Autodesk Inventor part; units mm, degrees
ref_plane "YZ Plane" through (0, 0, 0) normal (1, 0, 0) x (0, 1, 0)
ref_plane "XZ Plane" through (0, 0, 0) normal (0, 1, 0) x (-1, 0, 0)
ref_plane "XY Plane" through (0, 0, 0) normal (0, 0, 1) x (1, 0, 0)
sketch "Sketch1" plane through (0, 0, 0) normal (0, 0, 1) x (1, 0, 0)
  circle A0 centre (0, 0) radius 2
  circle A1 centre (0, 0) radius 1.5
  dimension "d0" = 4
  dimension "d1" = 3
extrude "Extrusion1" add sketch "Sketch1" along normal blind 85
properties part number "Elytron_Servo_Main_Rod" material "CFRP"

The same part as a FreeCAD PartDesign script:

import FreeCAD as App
import Part
import Sketcher
Q = App.Units.Quantity

doc = App.newDocument("Part")
params = doc.addObject("Spreadsheet::Sheet", "Params")
for row, (alias, value) in enumerate([
    ("sketch1_diameter", "4 mm"),
    ("sketch1_diameter2", "3 mm"),
    ("pad1_length", "85 mm"),
], start=1):
    params.set(f"A{row}", alias)
    params.set(f"B{row}", "=" + value)
    params.setAlias(f"B{row}", alias)

body = doc.addObject("PartDesign::Body", "Body")

# Sketch on XY plane
sketch1 = doc.addObject("Sketcher::SketchObject", "Sketch")
body.addObject(sketch1)
sketch1.AttachmentSupport = (doc.XY_Plane, [""])
sketch1.MapMode = "FlatFace"
sketch1.addGeometry([
    Part.Circle(App.Vector(0, 0, 0), App.Vector(0, 0, 1), 2),
    Part.Circle(App.Vector(0, 0, 0), App.Vector(0, 0, 1), 1.5),
], False)
sketch1.addConstraint([
    Sketcher.Constraint("Coincident", 0, 3, -1, 1),
    Sketcher.Constraint("Coincident", 1, 3, -1, 1),
    Sketcher.Constraint("Diameter", 0, Q("4 mm")),
    Sketcher.Constraint("Diameter", 1, Q("3 mm")),
])
sketch1.setExpression("Constraints[2]", "Params.sketch1_diameter")
sketch1.setExpression("Constraints[3]", "Params.sketch1_diameter2")
pad1 = doc.addObject("PartDesign::Pad", "Pad")
body.addObject(pad1)
pad1.Profile = sketch1
pad1.setExpression("Length", "Params.pad1_length")

doc.recompute()
